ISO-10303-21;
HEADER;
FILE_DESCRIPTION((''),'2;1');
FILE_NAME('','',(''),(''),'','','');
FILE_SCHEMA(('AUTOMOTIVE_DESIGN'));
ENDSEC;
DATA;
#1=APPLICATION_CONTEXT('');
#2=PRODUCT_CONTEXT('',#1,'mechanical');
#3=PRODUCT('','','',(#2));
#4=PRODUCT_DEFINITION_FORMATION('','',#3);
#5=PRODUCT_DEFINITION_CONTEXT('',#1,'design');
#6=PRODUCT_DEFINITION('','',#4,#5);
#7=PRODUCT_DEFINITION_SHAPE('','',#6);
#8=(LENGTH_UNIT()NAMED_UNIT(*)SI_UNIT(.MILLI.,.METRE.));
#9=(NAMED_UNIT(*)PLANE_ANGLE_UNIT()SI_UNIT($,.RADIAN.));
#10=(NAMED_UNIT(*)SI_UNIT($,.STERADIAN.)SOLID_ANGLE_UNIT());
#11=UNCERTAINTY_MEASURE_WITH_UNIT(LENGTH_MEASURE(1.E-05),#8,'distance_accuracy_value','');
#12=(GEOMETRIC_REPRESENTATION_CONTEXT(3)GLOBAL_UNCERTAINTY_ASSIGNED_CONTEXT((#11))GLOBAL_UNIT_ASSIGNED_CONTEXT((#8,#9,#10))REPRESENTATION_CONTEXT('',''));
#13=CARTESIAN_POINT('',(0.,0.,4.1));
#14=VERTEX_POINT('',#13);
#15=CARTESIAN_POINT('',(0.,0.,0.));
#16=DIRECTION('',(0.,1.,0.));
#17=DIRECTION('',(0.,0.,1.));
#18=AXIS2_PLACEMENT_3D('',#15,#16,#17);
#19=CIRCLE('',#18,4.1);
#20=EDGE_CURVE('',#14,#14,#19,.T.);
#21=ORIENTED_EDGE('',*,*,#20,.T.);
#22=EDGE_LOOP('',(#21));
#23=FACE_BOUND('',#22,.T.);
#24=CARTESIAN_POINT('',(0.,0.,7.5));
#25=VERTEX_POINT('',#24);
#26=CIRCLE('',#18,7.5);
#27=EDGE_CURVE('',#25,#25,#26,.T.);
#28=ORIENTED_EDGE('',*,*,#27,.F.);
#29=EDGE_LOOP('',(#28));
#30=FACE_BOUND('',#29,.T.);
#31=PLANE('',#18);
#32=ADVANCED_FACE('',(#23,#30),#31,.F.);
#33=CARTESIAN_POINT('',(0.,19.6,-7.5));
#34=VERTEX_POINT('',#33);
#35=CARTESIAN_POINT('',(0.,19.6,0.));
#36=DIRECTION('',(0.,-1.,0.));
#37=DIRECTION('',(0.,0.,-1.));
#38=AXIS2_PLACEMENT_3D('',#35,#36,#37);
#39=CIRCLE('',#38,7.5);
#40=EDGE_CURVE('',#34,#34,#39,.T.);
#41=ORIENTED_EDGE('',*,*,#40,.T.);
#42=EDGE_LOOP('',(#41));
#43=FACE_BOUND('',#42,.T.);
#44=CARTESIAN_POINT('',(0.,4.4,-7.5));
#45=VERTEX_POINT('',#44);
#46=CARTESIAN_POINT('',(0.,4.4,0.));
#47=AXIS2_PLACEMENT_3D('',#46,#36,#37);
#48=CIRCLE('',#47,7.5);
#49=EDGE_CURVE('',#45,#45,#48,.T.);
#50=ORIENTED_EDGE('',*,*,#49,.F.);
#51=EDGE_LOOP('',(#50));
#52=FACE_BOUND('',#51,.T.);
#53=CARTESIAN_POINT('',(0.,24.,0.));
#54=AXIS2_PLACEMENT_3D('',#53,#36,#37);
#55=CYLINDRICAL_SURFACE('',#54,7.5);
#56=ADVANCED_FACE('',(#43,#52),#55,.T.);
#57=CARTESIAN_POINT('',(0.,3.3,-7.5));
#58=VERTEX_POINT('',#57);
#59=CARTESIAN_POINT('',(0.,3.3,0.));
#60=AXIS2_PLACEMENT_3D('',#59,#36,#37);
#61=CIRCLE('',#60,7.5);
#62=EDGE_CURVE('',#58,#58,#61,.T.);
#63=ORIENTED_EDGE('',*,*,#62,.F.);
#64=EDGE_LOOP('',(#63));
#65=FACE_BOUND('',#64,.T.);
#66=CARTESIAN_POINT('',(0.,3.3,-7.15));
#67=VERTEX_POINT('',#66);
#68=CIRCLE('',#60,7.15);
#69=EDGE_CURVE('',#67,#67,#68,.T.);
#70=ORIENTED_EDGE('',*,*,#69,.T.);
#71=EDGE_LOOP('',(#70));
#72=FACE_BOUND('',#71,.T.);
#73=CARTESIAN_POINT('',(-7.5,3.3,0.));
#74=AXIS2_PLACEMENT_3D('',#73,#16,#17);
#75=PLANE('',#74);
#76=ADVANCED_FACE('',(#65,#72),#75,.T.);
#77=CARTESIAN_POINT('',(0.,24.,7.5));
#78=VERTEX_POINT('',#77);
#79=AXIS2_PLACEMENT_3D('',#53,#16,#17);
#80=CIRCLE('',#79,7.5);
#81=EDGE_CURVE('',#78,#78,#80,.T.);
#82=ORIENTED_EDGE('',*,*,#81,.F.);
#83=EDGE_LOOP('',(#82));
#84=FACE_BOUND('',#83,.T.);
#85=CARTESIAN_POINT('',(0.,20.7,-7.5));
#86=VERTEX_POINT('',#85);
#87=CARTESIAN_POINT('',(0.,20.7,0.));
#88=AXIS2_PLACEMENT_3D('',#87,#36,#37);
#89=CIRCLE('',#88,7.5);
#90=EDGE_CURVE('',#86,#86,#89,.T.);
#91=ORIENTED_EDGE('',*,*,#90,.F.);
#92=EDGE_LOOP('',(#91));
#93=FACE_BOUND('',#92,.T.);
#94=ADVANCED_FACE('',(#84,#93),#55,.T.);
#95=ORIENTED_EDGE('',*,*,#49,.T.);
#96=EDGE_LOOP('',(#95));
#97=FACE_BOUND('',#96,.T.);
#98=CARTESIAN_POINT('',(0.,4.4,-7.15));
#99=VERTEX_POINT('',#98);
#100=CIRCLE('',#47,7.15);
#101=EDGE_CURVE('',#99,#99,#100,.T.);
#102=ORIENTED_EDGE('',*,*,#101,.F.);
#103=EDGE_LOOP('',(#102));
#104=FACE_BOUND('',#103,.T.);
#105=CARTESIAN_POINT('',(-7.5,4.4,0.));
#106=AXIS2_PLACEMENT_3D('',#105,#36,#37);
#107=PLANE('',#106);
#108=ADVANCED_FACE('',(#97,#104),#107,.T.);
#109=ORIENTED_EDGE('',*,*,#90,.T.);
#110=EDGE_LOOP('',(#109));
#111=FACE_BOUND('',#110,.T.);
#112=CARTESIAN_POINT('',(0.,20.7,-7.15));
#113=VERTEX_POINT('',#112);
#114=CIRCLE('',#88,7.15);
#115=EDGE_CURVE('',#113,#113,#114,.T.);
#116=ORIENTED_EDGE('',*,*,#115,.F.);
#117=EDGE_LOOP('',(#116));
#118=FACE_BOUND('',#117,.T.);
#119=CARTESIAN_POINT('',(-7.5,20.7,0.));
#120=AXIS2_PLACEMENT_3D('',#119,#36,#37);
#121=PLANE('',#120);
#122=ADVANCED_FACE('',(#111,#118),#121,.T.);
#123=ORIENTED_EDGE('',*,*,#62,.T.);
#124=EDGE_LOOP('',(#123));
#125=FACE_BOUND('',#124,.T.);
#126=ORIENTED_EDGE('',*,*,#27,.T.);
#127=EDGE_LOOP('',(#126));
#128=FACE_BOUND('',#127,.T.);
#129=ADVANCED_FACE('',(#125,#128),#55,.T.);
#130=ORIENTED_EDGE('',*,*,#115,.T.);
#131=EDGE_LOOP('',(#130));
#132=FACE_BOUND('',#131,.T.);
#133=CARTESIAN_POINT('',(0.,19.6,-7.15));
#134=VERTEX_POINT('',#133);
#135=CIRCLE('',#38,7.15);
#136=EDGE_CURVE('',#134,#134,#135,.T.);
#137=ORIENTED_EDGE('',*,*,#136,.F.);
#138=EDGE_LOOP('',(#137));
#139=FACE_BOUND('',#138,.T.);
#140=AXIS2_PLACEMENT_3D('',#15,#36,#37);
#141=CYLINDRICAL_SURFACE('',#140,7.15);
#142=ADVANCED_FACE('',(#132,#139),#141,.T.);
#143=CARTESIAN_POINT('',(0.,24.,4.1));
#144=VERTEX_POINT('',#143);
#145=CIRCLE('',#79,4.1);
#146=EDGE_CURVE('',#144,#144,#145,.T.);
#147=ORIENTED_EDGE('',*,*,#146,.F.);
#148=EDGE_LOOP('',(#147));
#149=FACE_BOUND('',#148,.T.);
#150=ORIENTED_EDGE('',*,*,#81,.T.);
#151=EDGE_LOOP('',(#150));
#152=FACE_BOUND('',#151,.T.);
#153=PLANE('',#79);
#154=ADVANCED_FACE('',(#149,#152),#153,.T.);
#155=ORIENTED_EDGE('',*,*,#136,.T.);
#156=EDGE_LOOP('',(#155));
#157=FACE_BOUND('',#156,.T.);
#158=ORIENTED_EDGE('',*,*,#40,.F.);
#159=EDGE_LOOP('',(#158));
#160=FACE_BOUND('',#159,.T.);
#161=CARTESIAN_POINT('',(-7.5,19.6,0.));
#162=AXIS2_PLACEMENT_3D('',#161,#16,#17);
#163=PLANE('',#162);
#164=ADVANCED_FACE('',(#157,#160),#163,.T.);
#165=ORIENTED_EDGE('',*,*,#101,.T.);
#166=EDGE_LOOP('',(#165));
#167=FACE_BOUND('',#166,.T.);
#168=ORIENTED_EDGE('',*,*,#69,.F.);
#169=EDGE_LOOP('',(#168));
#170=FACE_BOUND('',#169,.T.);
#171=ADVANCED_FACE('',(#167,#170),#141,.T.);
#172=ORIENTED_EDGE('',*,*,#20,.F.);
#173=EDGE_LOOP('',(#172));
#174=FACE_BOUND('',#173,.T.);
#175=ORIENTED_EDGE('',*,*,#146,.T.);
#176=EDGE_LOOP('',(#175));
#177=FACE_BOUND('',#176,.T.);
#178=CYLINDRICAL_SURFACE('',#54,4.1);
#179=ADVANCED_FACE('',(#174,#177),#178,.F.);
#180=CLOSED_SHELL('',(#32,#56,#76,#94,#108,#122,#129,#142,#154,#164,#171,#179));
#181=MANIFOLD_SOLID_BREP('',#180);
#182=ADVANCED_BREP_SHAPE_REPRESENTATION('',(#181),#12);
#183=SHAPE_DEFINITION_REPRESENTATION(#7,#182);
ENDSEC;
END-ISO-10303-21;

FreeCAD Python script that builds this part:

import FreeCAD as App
import Part
import Sketcher
from FreeCAD import Vector
Q = App.Units.Quantity


def add_polygon(sketch, points):
    """Adds a closed chain of lines whose ends are joined by coincident constraints."""
    first, n = sketch.GeometryCount, len(points)
    for a, b in zip(points, points[1:] + points[:1]):
        sketch.addGeometry(Part.LineSegment(App.Vector(*a, 0), App.Vector(*b, 0)), False)
    for i in range(n):
        sketch.addConstraint(Sketcher.Constraint("Coincident", first + i, 2, first + (i + 1) % n, 1))

doc = App.newDocument("Part")
body = doc.addObject("PartDesign::Body", "Body")

# Sketch on XZ plane
sketch1 = body.newObject("Sketcher::SketchObject", "Sketch")
sketch1.AttachmentSupport = (doc.getObject("XZ_Plane"), [""])
sketch1.MapMode = "FlatFace"
sketch1.addGeometry([
    Part.Circle(Vector(0, 0, 0), Vector(0, 0, 1), 7.5),
    Part.Circle(Vector(0, 0, 0), Vector(0, 0, 1), 4.1),
], False)
sketch1.addConstraint([
    Sketcher.Constraint("Coincident", 0, 3, -1, 1),
    Sketcher.Constraint("Coincident", 1, 3, -1, 1),
    Sketcher.Constraint("Diameter", 0, Q("15 mm")),
    Sketcher.Constraint("Diameter", 1, Q("8.2 mm")),
])
pad1 = body.newObject("PartDesign::Pad", "Pad")
pad1.Profile = sketch1
pad1.Length = 24
pad1.Reversed = True

# Sketch on XY plane
sketch2 = body.newObject("Sketcher::SketchObject", "Sketch001")
sketch2.AttachmentSupport = (doc.getObject("XY_Plane"), [""])
sketch2.MapMode = "FlatFace"
add_polygon(sketch2, [(-7.5, 20.7), (-7.5, 19.6), (-7.15, 19.6), (-7.15, 20.7)])  # lines 0-3
add_polygon(sketch2, [(-7.5, 4.4), (-7.5, 3.3), (-7.15, 3.3), (-7.15, 4.4)])  # lines 4-7
sketch2.addConstraint([
    Sketcher.Constraint("Vertical", 0),
    Sketcher.Constraint("Horizontal", 1),
    Sketcher.Constraint("Vertical", 2),
    Sketcher.Constraint("Horizontal", 3),
    Sketcher.Constraint("Vertical", 4),
    Sketcher.Constraint("Horizontal", 5),
    Sketcher.Constraint("Vertical", 6),
    Sketcher.Constraint("Horizontal", 7),
    Sketcher.Constraint("Vertical", 3, 2, 4, 2),
    Sketcher.Constraint("Vertical", 2, 2, 5, 2),
    Sketcher.Constraint("Equal", 2, 4),
    Sketcher.Constraint("DistanceY", 0, 2, 0, 1, Q("1.1 mm")),
    Sketcher.Constraint("DistanceX", 1, 1, 1, 2, Q("0.35 mm")),
    Sketcher.Constraint("DistanceX", 0, 2, -1, 1, Q("7.5 mm")),
    Sketcher.Constraint("DistanceY", -1, 1, 0, 2, Q("19.6 mm")),
    Sketcher.Constraint("DistanceY", -1, 1, 4, 2, Q("3.3 mm")),
])
groove = body.newObject("PartDesign::Groove", "Groove")
groove.Profile = sketch2
groove.ReferenceAxis = (sketch2, ["V_Axis"])
groove.Angle = 360

doc.recompute()
